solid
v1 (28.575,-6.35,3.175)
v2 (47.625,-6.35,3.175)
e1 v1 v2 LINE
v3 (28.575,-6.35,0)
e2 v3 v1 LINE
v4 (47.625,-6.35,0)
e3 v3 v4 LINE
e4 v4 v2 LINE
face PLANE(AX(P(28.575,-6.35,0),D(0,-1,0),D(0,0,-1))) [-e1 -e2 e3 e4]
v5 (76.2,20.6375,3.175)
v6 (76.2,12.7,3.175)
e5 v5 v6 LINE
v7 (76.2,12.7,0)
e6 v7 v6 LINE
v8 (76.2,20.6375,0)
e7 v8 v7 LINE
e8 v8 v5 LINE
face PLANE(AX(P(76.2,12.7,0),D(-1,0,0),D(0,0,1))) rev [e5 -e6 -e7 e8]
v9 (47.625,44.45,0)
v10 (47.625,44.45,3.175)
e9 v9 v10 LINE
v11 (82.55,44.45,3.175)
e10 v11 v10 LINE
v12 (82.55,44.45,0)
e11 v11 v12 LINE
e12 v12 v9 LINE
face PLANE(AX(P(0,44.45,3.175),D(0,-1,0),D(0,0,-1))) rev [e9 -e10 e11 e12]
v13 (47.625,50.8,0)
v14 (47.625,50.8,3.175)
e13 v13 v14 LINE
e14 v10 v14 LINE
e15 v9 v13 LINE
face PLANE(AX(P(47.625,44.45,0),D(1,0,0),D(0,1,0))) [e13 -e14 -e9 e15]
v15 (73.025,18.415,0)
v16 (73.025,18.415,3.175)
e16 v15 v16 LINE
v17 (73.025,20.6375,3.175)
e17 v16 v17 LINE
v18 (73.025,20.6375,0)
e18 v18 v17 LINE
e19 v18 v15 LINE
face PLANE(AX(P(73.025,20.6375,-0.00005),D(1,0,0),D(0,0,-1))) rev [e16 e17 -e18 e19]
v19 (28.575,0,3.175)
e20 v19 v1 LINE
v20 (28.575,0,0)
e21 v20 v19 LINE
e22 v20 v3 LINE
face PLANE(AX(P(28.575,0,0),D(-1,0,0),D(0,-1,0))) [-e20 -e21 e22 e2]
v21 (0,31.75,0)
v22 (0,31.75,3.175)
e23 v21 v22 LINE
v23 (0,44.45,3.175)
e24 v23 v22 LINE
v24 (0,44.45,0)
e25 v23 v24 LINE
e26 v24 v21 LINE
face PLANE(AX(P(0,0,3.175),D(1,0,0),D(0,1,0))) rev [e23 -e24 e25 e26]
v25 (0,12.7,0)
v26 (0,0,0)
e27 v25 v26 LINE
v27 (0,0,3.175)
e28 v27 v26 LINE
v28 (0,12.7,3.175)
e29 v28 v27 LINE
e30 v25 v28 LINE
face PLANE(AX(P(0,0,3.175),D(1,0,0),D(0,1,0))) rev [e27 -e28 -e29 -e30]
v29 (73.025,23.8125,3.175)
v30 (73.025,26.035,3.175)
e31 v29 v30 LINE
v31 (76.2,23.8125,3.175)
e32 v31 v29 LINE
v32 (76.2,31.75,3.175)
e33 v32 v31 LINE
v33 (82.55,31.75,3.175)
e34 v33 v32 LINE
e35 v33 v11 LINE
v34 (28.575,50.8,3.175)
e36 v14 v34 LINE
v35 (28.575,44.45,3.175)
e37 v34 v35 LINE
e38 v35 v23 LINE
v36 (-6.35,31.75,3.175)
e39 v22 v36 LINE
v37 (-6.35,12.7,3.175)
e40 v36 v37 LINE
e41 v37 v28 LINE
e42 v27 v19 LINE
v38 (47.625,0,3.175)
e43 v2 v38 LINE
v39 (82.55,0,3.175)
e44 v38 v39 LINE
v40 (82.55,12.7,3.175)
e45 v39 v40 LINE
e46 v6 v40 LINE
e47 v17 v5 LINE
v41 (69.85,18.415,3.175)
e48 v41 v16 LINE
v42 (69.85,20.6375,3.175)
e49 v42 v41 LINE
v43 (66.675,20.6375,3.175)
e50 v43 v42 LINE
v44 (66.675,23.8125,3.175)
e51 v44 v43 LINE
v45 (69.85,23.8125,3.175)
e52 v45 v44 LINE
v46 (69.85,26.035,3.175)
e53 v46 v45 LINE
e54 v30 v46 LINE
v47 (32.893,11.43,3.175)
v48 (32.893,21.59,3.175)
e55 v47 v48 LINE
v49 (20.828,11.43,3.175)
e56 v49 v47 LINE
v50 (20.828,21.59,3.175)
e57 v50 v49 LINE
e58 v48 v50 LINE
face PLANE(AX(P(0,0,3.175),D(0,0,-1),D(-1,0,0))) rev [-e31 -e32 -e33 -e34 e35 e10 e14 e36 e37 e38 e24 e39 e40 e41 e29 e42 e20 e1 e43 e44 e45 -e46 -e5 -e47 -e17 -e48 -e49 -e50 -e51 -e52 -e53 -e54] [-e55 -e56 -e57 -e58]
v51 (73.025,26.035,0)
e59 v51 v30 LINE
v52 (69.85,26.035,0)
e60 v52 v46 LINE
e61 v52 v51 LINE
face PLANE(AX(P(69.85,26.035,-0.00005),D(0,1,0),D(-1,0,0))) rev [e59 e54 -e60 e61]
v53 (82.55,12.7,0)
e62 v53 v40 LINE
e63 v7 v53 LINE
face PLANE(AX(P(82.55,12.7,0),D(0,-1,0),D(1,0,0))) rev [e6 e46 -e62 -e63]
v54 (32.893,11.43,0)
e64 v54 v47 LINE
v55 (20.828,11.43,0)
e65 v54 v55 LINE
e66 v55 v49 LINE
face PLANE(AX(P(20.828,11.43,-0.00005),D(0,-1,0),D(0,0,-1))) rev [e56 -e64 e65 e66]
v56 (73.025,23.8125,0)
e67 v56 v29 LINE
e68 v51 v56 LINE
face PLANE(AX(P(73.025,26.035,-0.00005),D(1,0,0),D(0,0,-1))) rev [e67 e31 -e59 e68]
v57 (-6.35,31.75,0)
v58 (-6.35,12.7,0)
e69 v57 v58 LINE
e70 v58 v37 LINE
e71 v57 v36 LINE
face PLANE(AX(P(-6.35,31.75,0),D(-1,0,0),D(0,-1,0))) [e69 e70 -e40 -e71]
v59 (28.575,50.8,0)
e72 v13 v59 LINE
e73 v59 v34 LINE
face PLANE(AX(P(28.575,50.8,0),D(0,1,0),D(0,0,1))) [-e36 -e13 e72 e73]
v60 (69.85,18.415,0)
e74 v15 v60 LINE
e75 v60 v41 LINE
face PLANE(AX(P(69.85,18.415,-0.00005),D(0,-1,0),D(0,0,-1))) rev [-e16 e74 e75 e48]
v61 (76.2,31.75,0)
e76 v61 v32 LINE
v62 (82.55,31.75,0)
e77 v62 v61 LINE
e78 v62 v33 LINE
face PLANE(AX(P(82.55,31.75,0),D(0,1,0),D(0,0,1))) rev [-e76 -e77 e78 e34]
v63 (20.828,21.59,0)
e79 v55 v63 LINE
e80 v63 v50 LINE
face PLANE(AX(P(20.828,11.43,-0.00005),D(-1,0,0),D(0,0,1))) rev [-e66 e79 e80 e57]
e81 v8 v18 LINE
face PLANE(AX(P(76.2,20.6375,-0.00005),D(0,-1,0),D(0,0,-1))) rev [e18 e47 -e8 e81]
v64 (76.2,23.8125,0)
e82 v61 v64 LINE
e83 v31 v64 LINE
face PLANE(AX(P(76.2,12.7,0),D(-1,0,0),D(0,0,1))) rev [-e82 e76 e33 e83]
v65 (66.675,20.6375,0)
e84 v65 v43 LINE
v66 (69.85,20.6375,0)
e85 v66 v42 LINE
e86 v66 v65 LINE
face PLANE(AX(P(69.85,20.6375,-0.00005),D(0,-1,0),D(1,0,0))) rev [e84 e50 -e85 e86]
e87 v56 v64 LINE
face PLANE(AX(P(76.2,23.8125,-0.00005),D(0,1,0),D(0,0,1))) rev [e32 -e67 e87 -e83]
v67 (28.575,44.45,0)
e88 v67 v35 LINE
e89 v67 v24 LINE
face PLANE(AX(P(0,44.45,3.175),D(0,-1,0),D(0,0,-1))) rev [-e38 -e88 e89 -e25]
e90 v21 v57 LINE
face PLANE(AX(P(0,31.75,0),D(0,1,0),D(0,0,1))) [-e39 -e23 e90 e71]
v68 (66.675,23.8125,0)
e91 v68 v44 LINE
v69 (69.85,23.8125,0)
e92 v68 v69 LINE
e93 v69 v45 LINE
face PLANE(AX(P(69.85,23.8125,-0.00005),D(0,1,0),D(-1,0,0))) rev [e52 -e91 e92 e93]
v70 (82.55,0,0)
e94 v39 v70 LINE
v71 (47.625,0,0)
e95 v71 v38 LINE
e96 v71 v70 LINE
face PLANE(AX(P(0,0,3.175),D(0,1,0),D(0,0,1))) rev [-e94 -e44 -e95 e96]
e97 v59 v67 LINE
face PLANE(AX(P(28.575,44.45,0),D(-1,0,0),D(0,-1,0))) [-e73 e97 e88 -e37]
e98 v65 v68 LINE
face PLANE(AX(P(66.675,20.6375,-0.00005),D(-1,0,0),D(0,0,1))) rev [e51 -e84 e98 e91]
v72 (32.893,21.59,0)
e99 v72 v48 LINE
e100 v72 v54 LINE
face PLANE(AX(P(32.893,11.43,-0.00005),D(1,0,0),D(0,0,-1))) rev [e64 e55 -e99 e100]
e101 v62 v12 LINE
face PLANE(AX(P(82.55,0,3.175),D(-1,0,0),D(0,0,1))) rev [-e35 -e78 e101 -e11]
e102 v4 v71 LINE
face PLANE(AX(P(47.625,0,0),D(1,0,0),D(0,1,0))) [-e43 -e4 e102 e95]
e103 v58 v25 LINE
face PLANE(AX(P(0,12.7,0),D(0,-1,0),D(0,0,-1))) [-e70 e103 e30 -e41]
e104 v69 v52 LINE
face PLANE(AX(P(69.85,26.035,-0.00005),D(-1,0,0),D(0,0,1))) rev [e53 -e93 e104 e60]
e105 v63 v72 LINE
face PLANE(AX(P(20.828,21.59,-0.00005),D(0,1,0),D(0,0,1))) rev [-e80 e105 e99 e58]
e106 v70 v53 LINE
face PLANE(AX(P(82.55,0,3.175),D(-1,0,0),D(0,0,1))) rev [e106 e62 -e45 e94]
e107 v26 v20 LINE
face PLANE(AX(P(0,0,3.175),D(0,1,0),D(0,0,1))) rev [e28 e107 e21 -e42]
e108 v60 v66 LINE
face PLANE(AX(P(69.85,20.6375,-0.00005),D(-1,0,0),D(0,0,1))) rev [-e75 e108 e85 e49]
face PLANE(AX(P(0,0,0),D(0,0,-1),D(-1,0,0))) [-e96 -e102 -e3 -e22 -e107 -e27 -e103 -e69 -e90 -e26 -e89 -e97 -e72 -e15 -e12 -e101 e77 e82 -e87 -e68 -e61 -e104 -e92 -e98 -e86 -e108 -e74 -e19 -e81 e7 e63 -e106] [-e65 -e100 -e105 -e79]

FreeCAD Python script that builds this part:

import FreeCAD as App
import Part
import Sketcher
from FreeCAD import Vector
Q = App.Units.Quantity


def add_polygon(sketch, points):
    """Adds a closed chain of lines whose ends are joined by coincident constraints."""
    first, n = sketch.GeometryCount, len(points)
    for a, b in zip(points, points[1:] + points[:1]):
        sketch.addGeometry(Part.LineSegment(App.Vector(*a, 0), App.Vector(*b, 0)), False)
    for i in range(n):
        sketch.addConstraint(Sketcher.Constraint("Coincident", first + i, 2, first + (i + 1) % n, 1))

doc = App.newDocument("Part")
body = doc.addObject("PartDesign::Body", "Body")

# Sketch on XY plane
sketch1 = body.newObject("Sketcher::SketchObject", "Sketch")
sketch1.AttachmentSupport = (doc.getObject("XY_Plane"), [""])
sketch1.MapMode = "FlatFace"
add_polygon(sketch1, [(0, 44.45), (0, 0), (82.55, 0), (82.55, 44.45)])  # lines 0-3
sketch1.addConstraint([
    Sketcher.Constraint("Vertical", 0),
    Sketcher.Constraint("Horizontal", 1),
    Sketcher.Constraint("Vertical", 2),
    Sketcher.Constraint("Horizontal", 3),
    Sketcher.Constraint("Coincident", 0, 2, -1, 1),
    Sketcher.Constraint("DistanceX", 1, 1, 1, 2, Q("3.25 in")),
    Sketcher.Constraint("DistanceY", 0, 2, 0, 1, Q("1.75 in")),
])
pad1 = body.newObject("PartDesign::Pad", "Pad")
pad1.Profile = sketch1
pad1.Length = Q("0.125 in")

# Sketch on XY plane
sketch2 = body.newObject("Sketcher::SketchObject", "Sketch001")
sketch2.AttachmentSupport = (doc.getObject("XY_Plane"), [""])
sketch2.MapMode = "FlatFace"
sketch2.AttachmentOffset = App.Placement(Vector(0, 0, 0.125 * 25.4), App.Rotation())
add_polygon(sketch2, [(-6.35, 31.75), (-6.35, 12.7), (0, 12.7), (0, 31.75)])  # lines 0-3
sketch2.addConstraint([
    Sketcher.Constraint("Vertical", 0),
    Sketcher.Constraint("Horizontal", 1),
    Sketcher.Constraint("Vertical", 2),
    Sketcher.Constraint("Horizontal", 3),
    Sketcher.Constraint("PointOnObject", 1, 2, -2),
    Sketcher.Constraint("DistanceX", 1, 1, 1, 2, Q("0.25 in")),
    Sketcher.Constraint("DistanceY", 0, 2, 0, 1, Q("0.75 in")),
    Sketcher.Constraint("DistanceY", -1, 1, 0, 2, Q("0.5 in")),
])
pad2 = body.newObject("PartDesign::Pad", "Pad001")
pad2.Profile = sketch2
pad2.Length = Q("0.125 in")
pad2.Reversed = True

# Sketch on XY plane
sketch3 = body.newObject("Sketcher::SketchObject", "Sketch002")
sketch3.AttachmentSupport = (doc.getObject("XY_Plane"), [""])
sketch3.MapMode = "FlatFace"
sketch3.AttachmentOffset = App.Placement(Vector(0, 0, 0.125 * 25.4), App.Rotation())
add_polygon(sketch3, [(28.575, 50.8), (28.575, 44.45), (47.625, 44.45), (47.625, 50.8)])  # lines 0-3
add_polygon(sketch3, [(28.575, 0), (28.575, -6.35), (47.625, -6.35), (47.625, 0)])  # lines 4-7
sketch3.addConstraint([
    Sketcher.Constraint("Vertical", 0),
    Sketcher.Constraint("Horizontal", 1),
    Sketcher.Constraint("Vertical", 2),
    Sketcher.Constraint("Horizontal", 3),
    Sketcher.Constraint("Vertical", 4),
    Sketcher.Constraint("Horizontal", 5),
    Sketcher.Constraint("Vertical", 6),
    Sketcher.Constraint("Horizontal", 7),
    Sketcher.Constraint("PointOnObject", 6, 2, -1),
    Sketcher.Constraint("Vertical", 3, 2, 4, 2),
    Sketcher.Constraint("Vertical", 2, 2, 5, 2),
    Sketcher.Constraint("Equal", 2, 4),
    Sketcher.Constraint("DistanceY", -1, 1, 2, 2, Q("2 in")),
    Sketcher.Constraint("DistanceX", 1, 1, 1, 2, Q("0.75 in")),
    Sketcher.Constraint("DistanceY", 0, 2, 0, 1, Q("0.25 in")),
    Sketcher.Constraint("DistanceX", -1, 1, 0, 2, Q("1.125 in")),
])
pad3 = body.newObject("PartDesign::Pad", "Pad002")
pad3.Profile = sketch3
pad3.Length = Q("0.125 in")
pad3.Reversed = True

# Sketch on XY plane
sketch4 = body.newObject("Sketcher::SketchObject", "Sketch003")
sketch4.AttachmentSupport = (doc.getObject("XY_Plane"), [""])
sketch4.MapMode = "FlatFace"
sketch4.AttachmentOffset = App.Placement(Vector(0, 0, 0.125 * 25.4), App.Rotation())
add_polygon(sketch4, [(76.2, 31.75), (76.2, 12.7), (82.55, 12.7), (82.55, 31.75)])  # lines 0-3
sketch4.addConstraint([
    Sketcher.Constraint("Vertical", 0),
    Sketcher.Constraint("Horizontal", 1),
    Sketcher.Constraint("Vertical", 2),
    Sketcher.Constraint("Horizontal", 3),
    Sketcher.Constraint("DistanceX", -1, 1, 0, 2, Q("3 in")),
    Sketcher.Constraint("DistanceX", 1, 1, 1, 2, Q("0.25 in")),
    Sketcher.Constraint("DistanceY", 0, 2, 0, 1, Q("0.75 in")),
    Sketcher.Constraint("DistanceY", -1, 1, 0, 2, Q("0.5 in")),
])
pocket1 = body.newObject("PartDesign::Pocket", "Pocket")
pocket1.Profile = sketch4
pocket1.Length = Q("0.125 in")

# Sketch on XY plane
sketch5 = body.newObject("Sketcher::SketchObject", "Sketch004")
sketch5.AttachmentSupport = (doc.getObject("XY_Plane"), [""])
sketch5.MapMode = "FlatFace"
sketch5.AttachmentOffset = App.Placement(Vector(0, 0, 0.125 * 25.4), App.Rotation())
add_polygon(sketch5, [(20.828, 21.59), (20.828, 11.43), (32.893, 11.43), (32.893, 21.59)])  # lines 0-3
sketch5.addConstraint([
    Sketcher.Constraint("Vertical", 0),
    Sketcher.Constraint("Horizontal", 1),
    Sketcher.Constraint("Vertical", 2),
    Sketcher.Constraint("Horizontal", 3),
    Sketcher.Constraint("DistanceY", 0, 2, 0, 1, Q("0.4 in")),
    Sketcher.Constraint("DistanceX", 1, 1, 1, 2, Q("0.475 in")),
    Sketcher.Constraint("DistanceX", -1, 1, 0, 2, Q("0.82 in")),
    Sketcher.Constraint("DistanceY", -1, 1, 0, 2, Q("0.45 in")),
])
pocket2 = body.newObject("PartDesign::Pocket", "Pocket001")
pocket2.Profile = sketch5
pocket2.Type = "ThroughAll"

# Sketch on XY plane
sketch6 = body.newObject("Sketcher::SketchObject", "Sketch005")
sketch6.AttachmentSupport = (doc.getObject("XY_Plane"), [""])
sketch6.MapMode = "FlatFace"
sketch6.AttachmentOffset = App.Placement(Vector(0, 0, 0.125 * 25.4), App.Rotation())
add_polygon(sketch6, [(73.025, 26.035), (69.85, 26.035), (69.85, 23.8125), (66.675, 23.8125), (66.675, 20.6375), (69.85, 20.6375), (69.85, 18.415), (73.025, 18.415), (73.025, 20.6375), (76.2, 20.6375), (76.2, 23.8125), (73.025, 23.8125)])  # lines 0-11
sketch6.addConstraint([
    Sketcher.Constraint("Horizontal", 0),
    Sketcher.Constraint("Vertical", 1),
    Sketcher.Constraint("Horizontal", 2),
    Sketcher.Constraint("Vertical", 3),
    Sketcher.Constraint("Horizontal", 4),
    Sketcher.Constraint("Vertical", 5),
    Sketcher.Constraint("Horizontal", 6),
    Sketcher.Constraint("Vertical", 7),
    Sketcher.Constraint("Horizontal", 8),
    Sketcher.Constraint("Vertical", 9),
    Sketcher.Constraint("Horizontal", 10),
    Sketcher.Constraint("Vertical", 11),
    Sketcher.Constraint("Horizontal", 4, 2, 7, 2),
    Sketcher.Constraint("Horizontal", 2, 2, 9, 2),
    Sketcher.Constraint("Vertical", 1, 2, 4, 2),
    Sketcher.Constraint("Vertical", 7, 2, 10, 2),
    Sketcher.Constraint("Equal", 0, 2),
    Sketcher.Constraint("Equal", 6, 8),
    Sketcher.Constraint("Equal", 10, 3),
    Sketcher.Constraint("Equal", 1, 5),
    Sketcher.Constraint("DistanceX", -1, 1, 8, 2, Q("3 in")),
    Sketcher.Constraint("DistanceY", 5, 2, 0, 2, Q("0.3 in")),
    Sketcher.Constraint("DistanceX", 0, 2, 0, 1, Q("0.125 in")),
    Sketcher.Constraint("DistanceY", -1, 1, 0, 2, Q("1.025 in")),
])
pocket3 = body.newObject("PartDesign::Pocket", "Pocket002")
pocket3.Profile = sketch6
pocket3.Type = "ThroughAll"

doc.recompute()
